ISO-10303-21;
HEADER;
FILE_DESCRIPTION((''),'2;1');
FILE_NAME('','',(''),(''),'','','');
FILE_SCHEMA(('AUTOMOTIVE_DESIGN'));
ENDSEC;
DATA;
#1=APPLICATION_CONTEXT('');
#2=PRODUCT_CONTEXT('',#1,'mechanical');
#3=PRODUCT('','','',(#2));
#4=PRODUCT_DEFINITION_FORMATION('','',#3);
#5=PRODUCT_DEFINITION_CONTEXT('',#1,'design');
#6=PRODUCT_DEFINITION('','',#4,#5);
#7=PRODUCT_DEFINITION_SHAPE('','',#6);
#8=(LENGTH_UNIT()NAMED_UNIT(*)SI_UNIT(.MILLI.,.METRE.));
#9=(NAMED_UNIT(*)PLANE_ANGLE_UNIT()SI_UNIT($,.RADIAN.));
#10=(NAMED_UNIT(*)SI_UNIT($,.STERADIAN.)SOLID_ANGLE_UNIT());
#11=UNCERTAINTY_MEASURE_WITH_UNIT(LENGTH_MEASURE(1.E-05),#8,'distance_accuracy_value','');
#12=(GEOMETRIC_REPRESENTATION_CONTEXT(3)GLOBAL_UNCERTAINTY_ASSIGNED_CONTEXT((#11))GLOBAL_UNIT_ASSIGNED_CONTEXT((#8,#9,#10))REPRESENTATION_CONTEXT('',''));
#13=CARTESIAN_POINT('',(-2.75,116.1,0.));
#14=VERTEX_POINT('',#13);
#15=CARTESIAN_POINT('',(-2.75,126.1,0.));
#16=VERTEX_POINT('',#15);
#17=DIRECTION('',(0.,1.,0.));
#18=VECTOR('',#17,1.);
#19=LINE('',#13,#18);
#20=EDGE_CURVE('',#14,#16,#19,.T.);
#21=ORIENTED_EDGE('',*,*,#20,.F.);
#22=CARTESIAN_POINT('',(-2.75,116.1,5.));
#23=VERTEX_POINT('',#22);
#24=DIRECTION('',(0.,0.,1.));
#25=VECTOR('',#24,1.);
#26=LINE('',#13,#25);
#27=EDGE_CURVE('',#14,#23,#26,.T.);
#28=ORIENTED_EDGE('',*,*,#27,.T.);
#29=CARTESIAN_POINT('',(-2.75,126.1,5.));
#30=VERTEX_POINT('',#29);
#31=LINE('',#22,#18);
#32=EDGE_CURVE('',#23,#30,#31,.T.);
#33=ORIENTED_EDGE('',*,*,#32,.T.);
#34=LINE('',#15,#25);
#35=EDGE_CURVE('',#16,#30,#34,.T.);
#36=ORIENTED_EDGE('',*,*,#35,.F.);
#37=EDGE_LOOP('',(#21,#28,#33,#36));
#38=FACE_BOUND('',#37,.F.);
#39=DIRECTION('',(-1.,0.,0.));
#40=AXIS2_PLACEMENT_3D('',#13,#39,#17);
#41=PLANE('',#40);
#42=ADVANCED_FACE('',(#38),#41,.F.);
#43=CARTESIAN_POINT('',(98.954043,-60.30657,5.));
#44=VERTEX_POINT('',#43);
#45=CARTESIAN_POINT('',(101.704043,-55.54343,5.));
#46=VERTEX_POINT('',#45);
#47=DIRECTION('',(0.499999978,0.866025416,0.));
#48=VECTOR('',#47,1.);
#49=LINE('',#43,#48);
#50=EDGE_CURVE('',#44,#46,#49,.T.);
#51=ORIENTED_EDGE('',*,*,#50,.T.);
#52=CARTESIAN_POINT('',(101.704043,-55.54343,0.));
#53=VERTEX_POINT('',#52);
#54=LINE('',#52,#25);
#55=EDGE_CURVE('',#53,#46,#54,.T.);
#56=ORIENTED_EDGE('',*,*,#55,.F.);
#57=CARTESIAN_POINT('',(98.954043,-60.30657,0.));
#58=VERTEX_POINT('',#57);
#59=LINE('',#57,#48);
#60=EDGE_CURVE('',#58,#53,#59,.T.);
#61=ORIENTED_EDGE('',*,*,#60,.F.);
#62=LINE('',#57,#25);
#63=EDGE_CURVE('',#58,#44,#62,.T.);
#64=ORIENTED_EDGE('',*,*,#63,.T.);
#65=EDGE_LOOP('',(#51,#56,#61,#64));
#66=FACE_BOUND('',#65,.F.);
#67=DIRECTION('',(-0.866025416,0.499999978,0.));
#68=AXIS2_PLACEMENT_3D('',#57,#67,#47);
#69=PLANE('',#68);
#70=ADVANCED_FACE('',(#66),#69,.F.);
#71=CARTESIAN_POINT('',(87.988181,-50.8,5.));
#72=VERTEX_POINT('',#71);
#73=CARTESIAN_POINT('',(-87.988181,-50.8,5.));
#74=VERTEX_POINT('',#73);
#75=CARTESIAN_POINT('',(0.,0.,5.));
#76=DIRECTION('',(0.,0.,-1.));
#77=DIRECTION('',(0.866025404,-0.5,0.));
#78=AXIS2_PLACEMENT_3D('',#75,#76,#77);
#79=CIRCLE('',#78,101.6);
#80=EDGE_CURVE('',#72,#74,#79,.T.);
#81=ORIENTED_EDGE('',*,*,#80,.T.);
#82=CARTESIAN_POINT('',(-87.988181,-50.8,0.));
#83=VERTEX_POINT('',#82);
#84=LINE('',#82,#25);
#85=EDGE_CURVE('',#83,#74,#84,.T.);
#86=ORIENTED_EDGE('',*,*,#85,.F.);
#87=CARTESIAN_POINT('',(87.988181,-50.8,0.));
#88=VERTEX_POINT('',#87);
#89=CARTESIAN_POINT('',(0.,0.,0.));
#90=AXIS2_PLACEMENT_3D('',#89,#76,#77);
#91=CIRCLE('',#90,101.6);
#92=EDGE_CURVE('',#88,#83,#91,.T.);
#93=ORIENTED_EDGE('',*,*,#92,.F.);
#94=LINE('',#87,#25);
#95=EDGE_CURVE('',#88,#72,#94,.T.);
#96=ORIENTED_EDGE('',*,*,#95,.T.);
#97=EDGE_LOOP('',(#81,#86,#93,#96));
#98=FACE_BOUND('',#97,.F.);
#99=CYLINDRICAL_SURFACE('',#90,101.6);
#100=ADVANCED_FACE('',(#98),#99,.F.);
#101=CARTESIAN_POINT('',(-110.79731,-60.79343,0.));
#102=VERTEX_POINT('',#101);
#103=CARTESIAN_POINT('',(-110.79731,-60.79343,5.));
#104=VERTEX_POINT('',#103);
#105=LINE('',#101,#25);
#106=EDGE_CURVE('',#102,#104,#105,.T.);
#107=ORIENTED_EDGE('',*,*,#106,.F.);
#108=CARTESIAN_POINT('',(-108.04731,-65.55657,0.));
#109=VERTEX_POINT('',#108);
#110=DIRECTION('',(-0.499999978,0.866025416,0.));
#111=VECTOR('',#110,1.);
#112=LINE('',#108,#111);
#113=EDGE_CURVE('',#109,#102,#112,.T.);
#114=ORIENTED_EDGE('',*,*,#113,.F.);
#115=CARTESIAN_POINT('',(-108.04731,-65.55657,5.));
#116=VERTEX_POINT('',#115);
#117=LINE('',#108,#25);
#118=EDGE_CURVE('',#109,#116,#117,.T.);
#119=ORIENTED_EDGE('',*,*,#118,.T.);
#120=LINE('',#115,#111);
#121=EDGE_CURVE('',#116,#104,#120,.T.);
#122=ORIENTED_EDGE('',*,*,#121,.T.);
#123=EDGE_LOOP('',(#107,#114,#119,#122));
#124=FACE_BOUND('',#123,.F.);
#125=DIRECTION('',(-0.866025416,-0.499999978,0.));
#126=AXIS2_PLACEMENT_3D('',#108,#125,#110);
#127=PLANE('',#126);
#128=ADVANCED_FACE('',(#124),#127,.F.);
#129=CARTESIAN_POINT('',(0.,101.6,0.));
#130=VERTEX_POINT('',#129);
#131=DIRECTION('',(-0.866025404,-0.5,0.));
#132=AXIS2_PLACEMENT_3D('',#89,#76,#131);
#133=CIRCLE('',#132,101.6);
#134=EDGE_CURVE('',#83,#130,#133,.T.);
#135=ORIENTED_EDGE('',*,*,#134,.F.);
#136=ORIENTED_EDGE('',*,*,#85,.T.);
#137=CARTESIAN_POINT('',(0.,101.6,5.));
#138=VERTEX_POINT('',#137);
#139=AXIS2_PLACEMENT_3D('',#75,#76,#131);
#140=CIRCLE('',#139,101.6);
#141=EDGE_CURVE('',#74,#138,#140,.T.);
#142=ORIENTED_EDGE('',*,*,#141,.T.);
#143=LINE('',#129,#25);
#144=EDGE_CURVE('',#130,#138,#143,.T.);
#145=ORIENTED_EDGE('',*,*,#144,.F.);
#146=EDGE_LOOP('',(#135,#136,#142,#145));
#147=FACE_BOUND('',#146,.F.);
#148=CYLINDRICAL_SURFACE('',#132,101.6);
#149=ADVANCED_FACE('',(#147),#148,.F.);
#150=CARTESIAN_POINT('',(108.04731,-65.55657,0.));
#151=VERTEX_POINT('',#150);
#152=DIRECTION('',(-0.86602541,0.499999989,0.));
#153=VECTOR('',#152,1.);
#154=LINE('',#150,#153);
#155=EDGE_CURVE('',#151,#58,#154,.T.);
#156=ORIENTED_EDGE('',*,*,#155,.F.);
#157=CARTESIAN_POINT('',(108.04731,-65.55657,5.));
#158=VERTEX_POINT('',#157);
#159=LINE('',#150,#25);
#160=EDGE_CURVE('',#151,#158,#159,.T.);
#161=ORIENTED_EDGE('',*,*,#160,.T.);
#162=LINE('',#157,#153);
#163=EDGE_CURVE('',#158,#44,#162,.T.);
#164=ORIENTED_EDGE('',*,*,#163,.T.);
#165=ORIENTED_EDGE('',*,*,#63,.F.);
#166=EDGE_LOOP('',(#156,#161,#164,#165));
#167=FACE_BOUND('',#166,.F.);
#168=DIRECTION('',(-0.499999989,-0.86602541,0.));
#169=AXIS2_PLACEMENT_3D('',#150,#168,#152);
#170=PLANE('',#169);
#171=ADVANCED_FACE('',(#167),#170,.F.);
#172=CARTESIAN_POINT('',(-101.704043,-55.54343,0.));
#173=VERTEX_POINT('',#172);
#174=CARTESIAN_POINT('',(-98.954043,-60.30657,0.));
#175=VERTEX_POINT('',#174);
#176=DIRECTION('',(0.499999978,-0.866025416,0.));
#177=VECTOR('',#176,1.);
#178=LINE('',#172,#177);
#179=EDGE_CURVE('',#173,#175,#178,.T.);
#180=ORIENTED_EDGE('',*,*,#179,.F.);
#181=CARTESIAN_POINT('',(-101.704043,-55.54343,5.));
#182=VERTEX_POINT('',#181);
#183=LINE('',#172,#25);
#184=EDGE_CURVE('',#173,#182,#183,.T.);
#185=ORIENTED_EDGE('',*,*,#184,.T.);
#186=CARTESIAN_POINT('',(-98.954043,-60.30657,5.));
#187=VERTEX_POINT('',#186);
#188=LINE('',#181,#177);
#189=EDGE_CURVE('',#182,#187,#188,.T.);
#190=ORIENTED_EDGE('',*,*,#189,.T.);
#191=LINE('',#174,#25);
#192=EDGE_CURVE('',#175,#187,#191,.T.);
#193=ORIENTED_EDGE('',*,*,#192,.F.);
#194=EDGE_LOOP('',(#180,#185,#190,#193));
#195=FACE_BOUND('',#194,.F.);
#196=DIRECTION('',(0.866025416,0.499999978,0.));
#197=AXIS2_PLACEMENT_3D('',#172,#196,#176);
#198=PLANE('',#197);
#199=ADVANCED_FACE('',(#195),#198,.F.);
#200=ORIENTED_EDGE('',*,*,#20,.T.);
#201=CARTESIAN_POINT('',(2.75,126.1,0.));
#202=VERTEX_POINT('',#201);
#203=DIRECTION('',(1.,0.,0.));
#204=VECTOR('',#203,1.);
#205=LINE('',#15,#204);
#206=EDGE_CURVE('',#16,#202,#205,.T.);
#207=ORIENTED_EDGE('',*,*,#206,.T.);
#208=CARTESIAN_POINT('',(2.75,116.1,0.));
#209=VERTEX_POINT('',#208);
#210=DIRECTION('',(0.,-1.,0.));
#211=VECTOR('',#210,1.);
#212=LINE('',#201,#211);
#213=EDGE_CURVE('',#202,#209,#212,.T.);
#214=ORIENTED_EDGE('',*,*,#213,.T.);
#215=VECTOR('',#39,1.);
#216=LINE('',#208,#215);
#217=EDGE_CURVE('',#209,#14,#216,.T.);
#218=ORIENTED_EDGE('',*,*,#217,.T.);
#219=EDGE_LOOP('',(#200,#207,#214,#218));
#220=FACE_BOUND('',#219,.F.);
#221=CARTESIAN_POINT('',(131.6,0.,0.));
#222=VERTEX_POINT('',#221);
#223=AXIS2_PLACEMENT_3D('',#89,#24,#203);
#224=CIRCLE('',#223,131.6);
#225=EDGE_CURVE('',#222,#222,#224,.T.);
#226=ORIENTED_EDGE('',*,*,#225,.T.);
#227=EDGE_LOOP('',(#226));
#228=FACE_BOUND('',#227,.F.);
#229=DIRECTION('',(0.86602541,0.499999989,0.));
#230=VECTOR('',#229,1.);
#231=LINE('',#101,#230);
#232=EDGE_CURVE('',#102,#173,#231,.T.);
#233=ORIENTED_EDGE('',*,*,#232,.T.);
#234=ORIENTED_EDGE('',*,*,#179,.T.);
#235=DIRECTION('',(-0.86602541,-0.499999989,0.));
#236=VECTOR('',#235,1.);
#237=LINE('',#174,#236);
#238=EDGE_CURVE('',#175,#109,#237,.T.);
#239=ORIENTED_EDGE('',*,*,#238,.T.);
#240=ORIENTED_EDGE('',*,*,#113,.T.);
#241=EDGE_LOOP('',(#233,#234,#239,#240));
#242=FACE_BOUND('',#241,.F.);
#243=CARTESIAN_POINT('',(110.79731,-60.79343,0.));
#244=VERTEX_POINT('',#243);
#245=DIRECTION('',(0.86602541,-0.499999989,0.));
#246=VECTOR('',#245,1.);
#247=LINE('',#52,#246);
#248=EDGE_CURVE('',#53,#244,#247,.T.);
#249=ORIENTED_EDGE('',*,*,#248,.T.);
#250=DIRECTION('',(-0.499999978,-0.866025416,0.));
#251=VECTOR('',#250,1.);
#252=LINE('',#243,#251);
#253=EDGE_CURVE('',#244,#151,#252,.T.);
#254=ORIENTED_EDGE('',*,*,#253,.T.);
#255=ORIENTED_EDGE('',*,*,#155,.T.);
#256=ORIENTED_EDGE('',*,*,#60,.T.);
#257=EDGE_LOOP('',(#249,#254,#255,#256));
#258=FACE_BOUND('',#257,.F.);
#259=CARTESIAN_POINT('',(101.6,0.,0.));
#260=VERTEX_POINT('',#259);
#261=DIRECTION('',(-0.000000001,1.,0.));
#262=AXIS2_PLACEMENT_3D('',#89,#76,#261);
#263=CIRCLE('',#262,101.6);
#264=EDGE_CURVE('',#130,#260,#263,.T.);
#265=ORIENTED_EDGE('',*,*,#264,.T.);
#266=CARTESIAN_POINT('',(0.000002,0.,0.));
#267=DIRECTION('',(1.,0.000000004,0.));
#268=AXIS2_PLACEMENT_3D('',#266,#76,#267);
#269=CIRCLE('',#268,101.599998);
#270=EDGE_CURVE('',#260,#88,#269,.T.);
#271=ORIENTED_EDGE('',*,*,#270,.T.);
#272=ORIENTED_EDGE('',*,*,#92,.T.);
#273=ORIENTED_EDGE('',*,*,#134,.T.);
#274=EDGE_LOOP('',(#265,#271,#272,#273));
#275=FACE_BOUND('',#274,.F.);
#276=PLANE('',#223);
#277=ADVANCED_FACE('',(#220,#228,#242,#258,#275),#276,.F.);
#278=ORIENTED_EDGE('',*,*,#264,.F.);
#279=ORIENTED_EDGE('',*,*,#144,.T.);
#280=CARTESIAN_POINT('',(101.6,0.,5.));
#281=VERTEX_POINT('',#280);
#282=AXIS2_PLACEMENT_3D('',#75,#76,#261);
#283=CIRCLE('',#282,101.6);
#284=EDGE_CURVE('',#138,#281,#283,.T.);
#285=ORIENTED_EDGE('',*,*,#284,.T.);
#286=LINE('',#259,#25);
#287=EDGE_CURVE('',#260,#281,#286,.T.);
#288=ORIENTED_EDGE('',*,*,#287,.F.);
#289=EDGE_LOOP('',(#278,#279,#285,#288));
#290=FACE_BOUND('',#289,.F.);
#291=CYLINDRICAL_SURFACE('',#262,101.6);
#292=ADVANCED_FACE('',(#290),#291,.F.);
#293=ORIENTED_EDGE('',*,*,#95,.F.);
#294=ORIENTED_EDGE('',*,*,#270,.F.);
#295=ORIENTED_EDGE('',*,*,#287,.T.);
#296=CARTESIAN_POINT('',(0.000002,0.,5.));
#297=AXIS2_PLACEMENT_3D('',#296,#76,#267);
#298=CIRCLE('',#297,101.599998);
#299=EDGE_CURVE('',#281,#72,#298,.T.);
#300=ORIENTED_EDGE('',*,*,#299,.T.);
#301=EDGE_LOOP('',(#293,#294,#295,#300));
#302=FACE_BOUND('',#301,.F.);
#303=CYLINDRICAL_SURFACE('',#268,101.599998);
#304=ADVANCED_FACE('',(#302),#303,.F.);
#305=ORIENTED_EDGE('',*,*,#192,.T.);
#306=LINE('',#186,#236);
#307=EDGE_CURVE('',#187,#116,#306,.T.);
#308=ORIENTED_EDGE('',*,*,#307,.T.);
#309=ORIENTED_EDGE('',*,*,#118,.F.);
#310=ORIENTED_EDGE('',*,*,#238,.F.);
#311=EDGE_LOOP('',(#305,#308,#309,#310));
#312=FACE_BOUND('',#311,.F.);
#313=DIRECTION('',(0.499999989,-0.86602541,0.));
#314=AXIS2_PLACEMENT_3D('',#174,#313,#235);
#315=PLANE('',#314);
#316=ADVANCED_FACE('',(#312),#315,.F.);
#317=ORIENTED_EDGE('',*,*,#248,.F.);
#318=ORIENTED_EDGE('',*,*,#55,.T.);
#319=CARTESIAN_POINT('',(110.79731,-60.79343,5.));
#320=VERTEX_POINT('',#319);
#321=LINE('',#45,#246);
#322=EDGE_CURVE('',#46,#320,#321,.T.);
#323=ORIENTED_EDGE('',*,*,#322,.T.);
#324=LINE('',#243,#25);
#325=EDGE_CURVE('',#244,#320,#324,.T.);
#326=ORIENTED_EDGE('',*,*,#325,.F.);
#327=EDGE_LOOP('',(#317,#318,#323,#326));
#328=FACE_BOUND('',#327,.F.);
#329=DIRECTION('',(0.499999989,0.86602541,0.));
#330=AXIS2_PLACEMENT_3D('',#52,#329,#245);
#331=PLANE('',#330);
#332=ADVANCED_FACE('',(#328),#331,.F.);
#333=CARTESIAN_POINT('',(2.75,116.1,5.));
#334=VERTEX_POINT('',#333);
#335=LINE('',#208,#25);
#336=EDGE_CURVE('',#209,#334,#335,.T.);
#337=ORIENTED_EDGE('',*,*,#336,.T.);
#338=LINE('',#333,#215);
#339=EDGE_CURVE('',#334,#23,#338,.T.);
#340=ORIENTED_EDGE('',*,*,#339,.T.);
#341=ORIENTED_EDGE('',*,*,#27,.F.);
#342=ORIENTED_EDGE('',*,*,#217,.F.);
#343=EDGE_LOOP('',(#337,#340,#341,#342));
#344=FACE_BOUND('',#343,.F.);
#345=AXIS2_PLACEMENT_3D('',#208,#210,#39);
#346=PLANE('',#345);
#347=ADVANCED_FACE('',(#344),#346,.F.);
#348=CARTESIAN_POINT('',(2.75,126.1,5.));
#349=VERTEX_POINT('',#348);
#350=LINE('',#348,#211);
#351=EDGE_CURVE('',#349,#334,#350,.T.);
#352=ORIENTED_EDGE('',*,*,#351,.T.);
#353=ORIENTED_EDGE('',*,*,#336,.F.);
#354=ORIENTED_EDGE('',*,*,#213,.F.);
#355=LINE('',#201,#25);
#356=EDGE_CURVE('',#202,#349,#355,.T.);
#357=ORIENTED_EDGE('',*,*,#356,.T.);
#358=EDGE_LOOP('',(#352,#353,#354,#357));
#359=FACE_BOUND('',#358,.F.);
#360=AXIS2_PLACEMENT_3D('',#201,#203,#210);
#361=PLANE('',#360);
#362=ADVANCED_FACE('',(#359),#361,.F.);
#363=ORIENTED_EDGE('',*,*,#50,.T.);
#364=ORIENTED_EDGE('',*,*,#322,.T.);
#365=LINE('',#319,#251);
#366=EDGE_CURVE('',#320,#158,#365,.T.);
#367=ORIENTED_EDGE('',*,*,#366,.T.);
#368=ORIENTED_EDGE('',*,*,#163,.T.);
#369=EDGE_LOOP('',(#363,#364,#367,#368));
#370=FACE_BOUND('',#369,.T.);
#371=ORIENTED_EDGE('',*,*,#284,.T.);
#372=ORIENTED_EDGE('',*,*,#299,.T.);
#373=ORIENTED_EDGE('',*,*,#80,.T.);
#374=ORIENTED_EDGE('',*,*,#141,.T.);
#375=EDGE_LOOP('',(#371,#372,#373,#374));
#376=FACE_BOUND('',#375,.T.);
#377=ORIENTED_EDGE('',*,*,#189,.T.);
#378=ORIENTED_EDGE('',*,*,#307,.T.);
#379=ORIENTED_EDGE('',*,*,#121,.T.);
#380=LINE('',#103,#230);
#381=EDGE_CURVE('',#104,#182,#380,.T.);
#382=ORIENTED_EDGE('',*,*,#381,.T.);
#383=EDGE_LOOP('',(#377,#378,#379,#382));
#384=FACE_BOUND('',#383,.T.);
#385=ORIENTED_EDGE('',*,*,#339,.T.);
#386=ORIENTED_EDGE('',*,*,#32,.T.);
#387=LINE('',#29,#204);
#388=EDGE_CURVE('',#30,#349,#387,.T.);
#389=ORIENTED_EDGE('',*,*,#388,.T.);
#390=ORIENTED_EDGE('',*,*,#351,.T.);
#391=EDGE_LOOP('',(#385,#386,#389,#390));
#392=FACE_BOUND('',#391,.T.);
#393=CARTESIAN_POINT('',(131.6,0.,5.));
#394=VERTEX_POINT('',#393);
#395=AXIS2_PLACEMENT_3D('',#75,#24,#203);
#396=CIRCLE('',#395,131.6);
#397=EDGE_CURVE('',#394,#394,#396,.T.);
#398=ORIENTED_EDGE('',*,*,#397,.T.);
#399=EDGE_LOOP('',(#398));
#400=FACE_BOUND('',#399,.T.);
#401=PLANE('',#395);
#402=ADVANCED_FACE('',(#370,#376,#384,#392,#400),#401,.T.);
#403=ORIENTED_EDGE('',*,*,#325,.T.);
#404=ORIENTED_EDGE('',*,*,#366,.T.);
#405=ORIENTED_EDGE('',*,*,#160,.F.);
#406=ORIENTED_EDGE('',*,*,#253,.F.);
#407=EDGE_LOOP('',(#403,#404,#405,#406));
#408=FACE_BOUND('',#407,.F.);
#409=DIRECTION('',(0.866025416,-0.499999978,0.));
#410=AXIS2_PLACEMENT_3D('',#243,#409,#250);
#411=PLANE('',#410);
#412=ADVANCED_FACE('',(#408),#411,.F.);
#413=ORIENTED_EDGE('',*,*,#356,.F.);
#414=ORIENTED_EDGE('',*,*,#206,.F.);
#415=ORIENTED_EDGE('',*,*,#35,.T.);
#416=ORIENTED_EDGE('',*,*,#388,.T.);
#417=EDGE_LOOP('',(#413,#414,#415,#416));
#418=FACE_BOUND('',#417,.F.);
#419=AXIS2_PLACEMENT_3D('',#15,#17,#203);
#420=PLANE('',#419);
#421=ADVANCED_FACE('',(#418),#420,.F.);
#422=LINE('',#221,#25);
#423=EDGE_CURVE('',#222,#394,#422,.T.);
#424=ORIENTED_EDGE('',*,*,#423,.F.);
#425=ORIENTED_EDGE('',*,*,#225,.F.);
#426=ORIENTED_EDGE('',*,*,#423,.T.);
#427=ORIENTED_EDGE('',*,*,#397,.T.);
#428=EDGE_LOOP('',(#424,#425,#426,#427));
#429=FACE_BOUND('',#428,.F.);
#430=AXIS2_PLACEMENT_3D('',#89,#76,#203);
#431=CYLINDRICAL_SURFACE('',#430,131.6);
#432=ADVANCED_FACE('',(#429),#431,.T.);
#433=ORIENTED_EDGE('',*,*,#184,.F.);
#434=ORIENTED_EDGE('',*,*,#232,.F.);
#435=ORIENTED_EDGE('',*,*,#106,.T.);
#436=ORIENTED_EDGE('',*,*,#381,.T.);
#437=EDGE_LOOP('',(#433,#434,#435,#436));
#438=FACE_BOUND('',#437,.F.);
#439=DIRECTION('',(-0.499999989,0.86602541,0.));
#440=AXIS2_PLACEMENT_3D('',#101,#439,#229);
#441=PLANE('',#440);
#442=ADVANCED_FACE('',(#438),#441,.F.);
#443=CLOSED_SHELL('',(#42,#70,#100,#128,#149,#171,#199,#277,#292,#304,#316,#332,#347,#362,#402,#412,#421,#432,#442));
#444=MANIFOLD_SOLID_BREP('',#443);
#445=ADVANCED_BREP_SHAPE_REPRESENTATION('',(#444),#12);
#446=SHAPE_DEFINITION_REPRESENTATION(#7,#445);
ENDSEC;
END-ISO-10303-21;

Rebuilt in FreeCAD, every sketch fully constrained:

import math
import FreeCAD as App
import Part
import Sketcher

V = App.Vector
Q = App.Units.Quantity

doc = App.newDocument("Part")
body = doc.addObject("PartDesign::Body", "Body")

# Sketch on XY plane
sketch1 = body.newObject("Sketcher::SketchObject", "Sketch")
sketch1.AttachmentSupport = (doc.getObject("XY_Plane"), [""])
sketch1.MapMode = "FlatFace"
sketch1.addGeometry([
    Part.Circle(V(0, 0, 0), V(0, 0, 1), 131.6),  # 0
    Part.LineSegment(V(-110.79731, -60.79343, 0), V(-101.704043, -55.54343, 0)),  # 1
    Part.LineSegment(V(-101.704043, -55.54343, 0), V(-98.954043, -60.30657, 0)),  # 2
    Part.LineSegment(V(-98.954043, -60.30657, 0), V(-108.04731, -65.55657, 0)),  # 3
    Part.LineSegment(V(-108.04731, -65.55657, 0), V(-110.79731, -60.79343, 0)),  # 4
    Part.LineSegment(V(108.04731, -65.55657, 0), V(98.954043, -60.30657, 0)),  # 5
    Part.LineSegment(V(98.954043, -60.30657, 0), V(101.704043, -55.54343, 0)),  # 6
    Part.LineSegment(V(101.704043, -55.54343, 0), V(110.79731, -60.79343, 0)),  # 7
    Part.LineSegment(V(110.79731, -60.79343, 0), V(108.04731, -65.55657, 0)),  # 8
    Part.ArcOfCircle(Part.Circle(V(0, 0, 0), V(0, 0, 1), 101.6), math.radians(90), math.radians(210)),  # 9
    Part.ArcOfCircle(Part.Circle(V(0, 0, 0), V(0, 0, 1), 101.6), math.radians(0), math.radians(90)),  # 10
    Part.ArcOfCircle(Part.Circle(V(0.000002, 0, 0), V(0, 0, 1), 101.599998), math.radians(-30), math.radians(0)),  # 11
    Part.ArcOfCircle(Part.Circle(V(0, 0, 0), V(0, 0, 1), 101.6), math.radians(-150), math.radians(-30)),  # 12
    Part.LineSegment(V(2.75, 126.1, 0), V(2.75, 116.1, 0)),  # 13
    Part.LineSegment(V(2.75, 116.1, 0), V(-2.75, 116.1, 0)),  # 14
    Part.LineSegment(V(-2.75, 116.1, 0), V(-2.75, 126.1, 0)),  # 15
    Part.LineSegment(V(-2.75, 126.1, 0), V(2.75, 126.1, 0)),  # 16
], False)
sketch1.addConstraint([
    Sketcher.Constraint("Coincident", 1, 2, 2, 1),
    Sketcher.Constraint("Coincident", 2, 2, 3, 1),
    Sketcher.Constraint("Coincident", 3, 2, 4, 1),
    Sketcher.Constraint("Coincident", 4, 2, 1, 1),
    Sketcher.Constraint("Coincident", 5, 2, 6, 1),
    Sketcher.Constraint("Coincident", 6, 2, 7, 1),
    Sketcher.Constraint("Coincident", 7, 2, 8, 1),
    Sketcher.Constraint("Coincident", 8, 2, 5, 1),
    Sketcher.Constraint("Tangent", 9, 1, 10, 2),
    Sketcher.Constraint("Tangent", 10, 1, 11, 2),
    Sketcher.Constraint("Tangent", 11, 1, 12, 2),
    Sketcher.Constraint("Tangent", 12, 1, 9, 2),
    Sketcher.Constraint("Coincident", 13, 2, 14, 1),
    Sketcher.Constraint("Coincident", 14, 2, 15, 1),
    Sketcher.Constraint("Coincident", 15, 2, 16, 1),
    Sketcher.Constraint("Coincident", 16, 2, 13, 1),
    Sketcher.Constraint("Vertical", 13),
    Sketcher.Constraint("Horizontal", 14),
    Sketcher.Constraint("Vertical", 15),
    Sketcher.Constraint("Horizontal", 16),
    Sketcher.Constraint("Coincident", 0, 3, -1, 1),
    Sketcher.Constraint("Coincident", 9, 3, -1, 1),
    Sketcher.Constraint("Equal", 9, 10),
    Sketcher.Constraint("Symmetric", 2, 2, 5, 2, -2),
    Sketcher.Constraint("Symmetric", 1, 2, 6, 2, -2),
    Sketcher.Constraint("Symmetric", 4, 2, 7, 2, -2),
    Sketcher.Constraint("Symmetric", 3, 2, 8, 2, -2),
    Sketcher.Constraint("PointOnObject", 9, 1, -2),
    Sketcher.Constraint("PointOnObject", 10, 1, -1),
    Sketcher.Constraint("Perpendicular", 1, 2),
    Sketcher.Constraint("Perpendicular", 2, 3),
    Sketcher.Constraint("Perpendicular", 3, 4),
    Sketcher.Constraint("Horizontal", 11, 1, 12, 1),
    Sketcher.Constraint("Diameter", 0, Q("263.2 mm")),
    Sketcher.Constraint("Radius", 9, Q("101.6 mm")),
    Sketcher.Constraint("DistanceY", 13, 2, 13, 1, Q("10 mm")),
    Sketcher.Constraint("Angle", 1, Q("29.999999 deg")),
    Sketcher.Constraint("DistanceX", 14, 2, 14, 1, Q("5.5 mm")),
    Sketcher.Constraint("Distance", 1, Q("10.5 mm")),
    Sketcher.Constraint("Distance", 2, Q("5.5 mm")),
    Sketcher.Constraint("DistanceY", 11, 1, -1, 1, Q("50.8 mm")),
    Sketcher.Constraint("DistanceY", -1, 1, 13, 2, Q("116.1 mm")),
    Sketcher.Constraint("DistanceX", -1, 1, 13, 2, Q("2.75 mm")),
    Sketcher.Constraint("DistanceY", 1, 2, -1, 1, Q("55.54343 mm")),
    Sketcher.Constraint("DistanceX", 3, 2, -1, 1, Q("108.04731 mm")),
])
pad1 = body.newObject("PartDesign::Pad", "Pad")
pad1.Profile = sketch1
pad1.Length = 5

doc.recompute()
